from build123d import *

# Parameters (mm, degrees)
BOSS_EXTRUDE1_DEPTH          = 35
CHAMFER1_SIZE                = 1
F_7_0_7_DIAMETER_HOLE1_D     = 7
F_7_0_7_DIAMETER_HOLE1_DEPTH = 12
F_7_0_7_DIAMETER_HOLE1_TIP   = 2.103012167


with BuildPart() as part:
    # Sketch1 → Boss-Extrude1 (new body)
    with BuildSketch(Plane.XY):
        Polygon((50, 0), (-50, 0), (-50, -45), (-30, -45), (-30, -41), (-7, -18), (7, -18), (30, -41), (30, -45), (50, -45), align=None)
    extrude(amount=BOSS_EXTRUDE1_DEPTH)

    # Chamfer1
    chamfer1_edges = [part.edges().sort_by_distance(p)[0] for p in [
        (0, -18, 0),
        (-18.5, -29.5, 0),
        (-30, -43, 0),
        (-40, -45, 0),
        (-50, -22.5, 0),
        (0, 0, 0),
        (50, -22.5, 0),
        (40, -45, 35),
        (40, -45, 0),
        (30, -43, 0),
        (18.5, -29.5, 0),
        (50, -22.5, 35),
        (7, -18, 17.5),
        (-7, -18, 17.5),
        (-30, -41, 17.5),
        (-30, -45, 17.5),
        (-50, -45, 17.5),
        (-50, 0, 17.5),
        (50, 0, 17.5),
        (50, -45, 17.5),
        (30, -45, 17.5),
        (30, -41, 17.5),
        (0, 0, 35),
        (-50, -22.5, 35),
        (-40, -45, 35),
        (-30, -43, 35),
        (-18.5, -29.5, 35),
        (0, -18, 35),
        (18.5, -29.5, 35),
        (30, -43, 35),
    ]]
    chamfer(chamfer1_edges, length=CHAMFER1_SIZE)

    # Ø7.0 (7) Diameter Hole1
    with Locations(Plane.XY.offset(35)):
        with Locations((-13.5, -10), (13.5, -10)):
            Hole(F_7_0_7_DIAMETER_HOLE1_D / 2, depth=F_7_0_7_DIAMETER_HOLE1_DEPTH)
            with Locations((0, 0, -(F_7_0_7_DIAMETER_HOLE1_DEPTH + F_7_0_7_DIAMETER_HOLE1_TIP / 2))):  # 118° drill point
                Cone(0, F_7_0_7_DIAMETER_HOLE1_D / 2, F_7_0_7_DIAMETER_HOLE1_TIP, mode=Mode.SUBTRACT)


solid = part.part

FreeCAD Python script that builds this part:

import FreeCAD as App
import Part
import Sketcher

V = App.Vector
Q = App.Units.Quantity


def add_polygon(sketch, points):
    """Adds a closed chain of lines whose ends are joined by coincident constraints."""
    first, n = sketch.GeometryCount, len(points)
    for a, b in zip(points, points[1:] + points[:1]):
        sketch.addGeometry(Part.LineSegment(App.Vector(*a, 0), App.Vector(*b, 0)), False)
    for i in range(n):
        sketch.addConstraint(Sketcher.Constraint("Coincident", first + i, 2, first + (i + 1) % n, 1))

doc = App.newDocument("Part")
params = doc.addObject("Spreadsheet::Sheet", "Params")
for row, (alias, value) in enumerate([
    ("sketch1_width", "100 mm"),
    ("sketch1_width2", "20 mm"),
    ("sketch1_width3", "14 mm"),
    ("sketch1_height", "45 mm"),
    ("sketch1_height2", "4 mm"),
    ("pad1_length", "35 mm"),
    ("chamfer_size", "1 mm"),
    ("sketch2_diameter", "7 mm"),
    ("hole_diameter", "7 mm"),
    ("hole_depth", "12 mm"),
], start=1):
    params.set(f"A{row}", alias)
    params.set(f"B{row}", "=" + value)
    params.setAlias(f"B{row}", alias)

body = doc.addObject("PartDesign::Body", "Body")

sketch1 = body.newObject("Sketcher::SketchObject", "Sketch")
sketch1.AttachmentSupport = (doc.getObject("XY_Plane"), [""])
sketch1.MapMode = "FlatFace"
add_polygon(sketch1, [(50, 0), (-50, 0), (-50, -45), (-30, -45), (-30, -41), (-7, -18), (7, -18), (30, -41), (30, -45), (50, -45)])
sketch1.addConstraint([
    Sketcher.Constraint("Horizontal", 0),
    Sketcher.Constraint("Vertical", 1),
    Sketcher.Constraint("Horizontal", 2),
    Sketcher.Constraint("Vertical", 3),
    Sketcher.Constraint("Horizontal", 5),
    Sketcher.Constraint("Vertical", 7),
    Sketcher.Constraint("Horizontal", 8),
    Sketcher.Constraint("Vertical", 9),
    Sketcher.Constraint("Symmetric", 0, 2, 9, 2, -1, 1),
    Sketcher.Constraint("Symmetric", 3, 2, 6, 2, -2),
    Sketcher.Constraint("Perpendicular", 4, 6),
    Sketcher.Constraint("Horizontal", 2, 2, 7, 2),
    Sketcher.Constraint("Equal", 4, 6),
    Sketcher.Constraint("DistanceX", 0, 2, 0, 1, Q("100 mm")),
    Sketcher.Constraint("DistanceX", 2, 1, 2, 2, Q("20 mm")),
    Sketcher.Constraint("DistanceX", 5, 1, 5, 2, Q("14 mm")),
    Sketcher.Constraint("DistanceY", 1, 2, 1, 1, Q("45 mm")),
    Sketcher.Constraint("DistanceY", 3, 1, 3, 2, Q("4 mm")),
])
sketch1.setExpression("Constraints[23]", "Params.sketch1_width")
sketch1.setExpression("Constraints[24]", "Params.sketch1_width2")
sketch1.setExpression("Constraints[25]", "Params.sketch1_width3")
sketch1.setExpression("Constraints[26]", "Params.sketch1_height")
sketch1.setExpression("Constraints[27]", "Params.sketch1_height2")
pad1 = body.newObject("PartDesign::Pad", "Pad")
pad1.Profile = sketch1
pad1.setExpression("Length", "Params.pad1_length")
doc.recompute()

chamfer = body.newObject("PartDesign::Chamfer", "Chamfer")
chamfer.Base = (pad1, ["Edge1"])
chamfer.UseAllEdges = True
chamfer.setExpression("Size", "Params.chamfer_size")

sketch2 = body.newObject("Sketcher::SketchObject", "Sketch001")
sketch2.AttachmentSupport = (doc.getObject("XY_Plane"), [""])
sketch2.MapMode = "FlatFace"
sketch2.AttachmentOffset = App.Placement(V(0, 0, 35), App.Rotation())
sketch2.addGeometry([
    Part.Circle(V(-13.5, -10, 0), V(0, 0, 1), 3.5),
    Part.Circle(V(13.5, -10, 0), V(0, 0, 1), 3.5),
], False)
sketch2.addConstraint([
    Sketcher.Constraint("Equal", 0, 1),
    Sketcher.Constraint("Symmetric", 0, 3, 1, 3, -2),
    Sketcher.Constraint("Diameter", 0, Q("7 mm")),
    Sketcher.Constraint("DistanceY", 0, 3, -1, 1, Q("10 mm")),
    Sketcher.Constraint("DistanceX", 0, 3, 1, 3, Q("27 mm")),
])
sketch2.setExpression("Constraints[2]", "Params.sketch2_diameter")
doc.recompute()
hole = body.newObject("PartDesign::Hole", "Hole")
hole.Profile = sketch2
hole.ThreadType = "None"
hole.setExpression("Diameter", "Params.hole_diameter")
hole.DepthType = "Dimension"
hole.setExpression("Depth", "Params.hole_depth")
hole.DrillPoint = "Angled"
hole.DrillPointAngle = 118

doc.recompute()
